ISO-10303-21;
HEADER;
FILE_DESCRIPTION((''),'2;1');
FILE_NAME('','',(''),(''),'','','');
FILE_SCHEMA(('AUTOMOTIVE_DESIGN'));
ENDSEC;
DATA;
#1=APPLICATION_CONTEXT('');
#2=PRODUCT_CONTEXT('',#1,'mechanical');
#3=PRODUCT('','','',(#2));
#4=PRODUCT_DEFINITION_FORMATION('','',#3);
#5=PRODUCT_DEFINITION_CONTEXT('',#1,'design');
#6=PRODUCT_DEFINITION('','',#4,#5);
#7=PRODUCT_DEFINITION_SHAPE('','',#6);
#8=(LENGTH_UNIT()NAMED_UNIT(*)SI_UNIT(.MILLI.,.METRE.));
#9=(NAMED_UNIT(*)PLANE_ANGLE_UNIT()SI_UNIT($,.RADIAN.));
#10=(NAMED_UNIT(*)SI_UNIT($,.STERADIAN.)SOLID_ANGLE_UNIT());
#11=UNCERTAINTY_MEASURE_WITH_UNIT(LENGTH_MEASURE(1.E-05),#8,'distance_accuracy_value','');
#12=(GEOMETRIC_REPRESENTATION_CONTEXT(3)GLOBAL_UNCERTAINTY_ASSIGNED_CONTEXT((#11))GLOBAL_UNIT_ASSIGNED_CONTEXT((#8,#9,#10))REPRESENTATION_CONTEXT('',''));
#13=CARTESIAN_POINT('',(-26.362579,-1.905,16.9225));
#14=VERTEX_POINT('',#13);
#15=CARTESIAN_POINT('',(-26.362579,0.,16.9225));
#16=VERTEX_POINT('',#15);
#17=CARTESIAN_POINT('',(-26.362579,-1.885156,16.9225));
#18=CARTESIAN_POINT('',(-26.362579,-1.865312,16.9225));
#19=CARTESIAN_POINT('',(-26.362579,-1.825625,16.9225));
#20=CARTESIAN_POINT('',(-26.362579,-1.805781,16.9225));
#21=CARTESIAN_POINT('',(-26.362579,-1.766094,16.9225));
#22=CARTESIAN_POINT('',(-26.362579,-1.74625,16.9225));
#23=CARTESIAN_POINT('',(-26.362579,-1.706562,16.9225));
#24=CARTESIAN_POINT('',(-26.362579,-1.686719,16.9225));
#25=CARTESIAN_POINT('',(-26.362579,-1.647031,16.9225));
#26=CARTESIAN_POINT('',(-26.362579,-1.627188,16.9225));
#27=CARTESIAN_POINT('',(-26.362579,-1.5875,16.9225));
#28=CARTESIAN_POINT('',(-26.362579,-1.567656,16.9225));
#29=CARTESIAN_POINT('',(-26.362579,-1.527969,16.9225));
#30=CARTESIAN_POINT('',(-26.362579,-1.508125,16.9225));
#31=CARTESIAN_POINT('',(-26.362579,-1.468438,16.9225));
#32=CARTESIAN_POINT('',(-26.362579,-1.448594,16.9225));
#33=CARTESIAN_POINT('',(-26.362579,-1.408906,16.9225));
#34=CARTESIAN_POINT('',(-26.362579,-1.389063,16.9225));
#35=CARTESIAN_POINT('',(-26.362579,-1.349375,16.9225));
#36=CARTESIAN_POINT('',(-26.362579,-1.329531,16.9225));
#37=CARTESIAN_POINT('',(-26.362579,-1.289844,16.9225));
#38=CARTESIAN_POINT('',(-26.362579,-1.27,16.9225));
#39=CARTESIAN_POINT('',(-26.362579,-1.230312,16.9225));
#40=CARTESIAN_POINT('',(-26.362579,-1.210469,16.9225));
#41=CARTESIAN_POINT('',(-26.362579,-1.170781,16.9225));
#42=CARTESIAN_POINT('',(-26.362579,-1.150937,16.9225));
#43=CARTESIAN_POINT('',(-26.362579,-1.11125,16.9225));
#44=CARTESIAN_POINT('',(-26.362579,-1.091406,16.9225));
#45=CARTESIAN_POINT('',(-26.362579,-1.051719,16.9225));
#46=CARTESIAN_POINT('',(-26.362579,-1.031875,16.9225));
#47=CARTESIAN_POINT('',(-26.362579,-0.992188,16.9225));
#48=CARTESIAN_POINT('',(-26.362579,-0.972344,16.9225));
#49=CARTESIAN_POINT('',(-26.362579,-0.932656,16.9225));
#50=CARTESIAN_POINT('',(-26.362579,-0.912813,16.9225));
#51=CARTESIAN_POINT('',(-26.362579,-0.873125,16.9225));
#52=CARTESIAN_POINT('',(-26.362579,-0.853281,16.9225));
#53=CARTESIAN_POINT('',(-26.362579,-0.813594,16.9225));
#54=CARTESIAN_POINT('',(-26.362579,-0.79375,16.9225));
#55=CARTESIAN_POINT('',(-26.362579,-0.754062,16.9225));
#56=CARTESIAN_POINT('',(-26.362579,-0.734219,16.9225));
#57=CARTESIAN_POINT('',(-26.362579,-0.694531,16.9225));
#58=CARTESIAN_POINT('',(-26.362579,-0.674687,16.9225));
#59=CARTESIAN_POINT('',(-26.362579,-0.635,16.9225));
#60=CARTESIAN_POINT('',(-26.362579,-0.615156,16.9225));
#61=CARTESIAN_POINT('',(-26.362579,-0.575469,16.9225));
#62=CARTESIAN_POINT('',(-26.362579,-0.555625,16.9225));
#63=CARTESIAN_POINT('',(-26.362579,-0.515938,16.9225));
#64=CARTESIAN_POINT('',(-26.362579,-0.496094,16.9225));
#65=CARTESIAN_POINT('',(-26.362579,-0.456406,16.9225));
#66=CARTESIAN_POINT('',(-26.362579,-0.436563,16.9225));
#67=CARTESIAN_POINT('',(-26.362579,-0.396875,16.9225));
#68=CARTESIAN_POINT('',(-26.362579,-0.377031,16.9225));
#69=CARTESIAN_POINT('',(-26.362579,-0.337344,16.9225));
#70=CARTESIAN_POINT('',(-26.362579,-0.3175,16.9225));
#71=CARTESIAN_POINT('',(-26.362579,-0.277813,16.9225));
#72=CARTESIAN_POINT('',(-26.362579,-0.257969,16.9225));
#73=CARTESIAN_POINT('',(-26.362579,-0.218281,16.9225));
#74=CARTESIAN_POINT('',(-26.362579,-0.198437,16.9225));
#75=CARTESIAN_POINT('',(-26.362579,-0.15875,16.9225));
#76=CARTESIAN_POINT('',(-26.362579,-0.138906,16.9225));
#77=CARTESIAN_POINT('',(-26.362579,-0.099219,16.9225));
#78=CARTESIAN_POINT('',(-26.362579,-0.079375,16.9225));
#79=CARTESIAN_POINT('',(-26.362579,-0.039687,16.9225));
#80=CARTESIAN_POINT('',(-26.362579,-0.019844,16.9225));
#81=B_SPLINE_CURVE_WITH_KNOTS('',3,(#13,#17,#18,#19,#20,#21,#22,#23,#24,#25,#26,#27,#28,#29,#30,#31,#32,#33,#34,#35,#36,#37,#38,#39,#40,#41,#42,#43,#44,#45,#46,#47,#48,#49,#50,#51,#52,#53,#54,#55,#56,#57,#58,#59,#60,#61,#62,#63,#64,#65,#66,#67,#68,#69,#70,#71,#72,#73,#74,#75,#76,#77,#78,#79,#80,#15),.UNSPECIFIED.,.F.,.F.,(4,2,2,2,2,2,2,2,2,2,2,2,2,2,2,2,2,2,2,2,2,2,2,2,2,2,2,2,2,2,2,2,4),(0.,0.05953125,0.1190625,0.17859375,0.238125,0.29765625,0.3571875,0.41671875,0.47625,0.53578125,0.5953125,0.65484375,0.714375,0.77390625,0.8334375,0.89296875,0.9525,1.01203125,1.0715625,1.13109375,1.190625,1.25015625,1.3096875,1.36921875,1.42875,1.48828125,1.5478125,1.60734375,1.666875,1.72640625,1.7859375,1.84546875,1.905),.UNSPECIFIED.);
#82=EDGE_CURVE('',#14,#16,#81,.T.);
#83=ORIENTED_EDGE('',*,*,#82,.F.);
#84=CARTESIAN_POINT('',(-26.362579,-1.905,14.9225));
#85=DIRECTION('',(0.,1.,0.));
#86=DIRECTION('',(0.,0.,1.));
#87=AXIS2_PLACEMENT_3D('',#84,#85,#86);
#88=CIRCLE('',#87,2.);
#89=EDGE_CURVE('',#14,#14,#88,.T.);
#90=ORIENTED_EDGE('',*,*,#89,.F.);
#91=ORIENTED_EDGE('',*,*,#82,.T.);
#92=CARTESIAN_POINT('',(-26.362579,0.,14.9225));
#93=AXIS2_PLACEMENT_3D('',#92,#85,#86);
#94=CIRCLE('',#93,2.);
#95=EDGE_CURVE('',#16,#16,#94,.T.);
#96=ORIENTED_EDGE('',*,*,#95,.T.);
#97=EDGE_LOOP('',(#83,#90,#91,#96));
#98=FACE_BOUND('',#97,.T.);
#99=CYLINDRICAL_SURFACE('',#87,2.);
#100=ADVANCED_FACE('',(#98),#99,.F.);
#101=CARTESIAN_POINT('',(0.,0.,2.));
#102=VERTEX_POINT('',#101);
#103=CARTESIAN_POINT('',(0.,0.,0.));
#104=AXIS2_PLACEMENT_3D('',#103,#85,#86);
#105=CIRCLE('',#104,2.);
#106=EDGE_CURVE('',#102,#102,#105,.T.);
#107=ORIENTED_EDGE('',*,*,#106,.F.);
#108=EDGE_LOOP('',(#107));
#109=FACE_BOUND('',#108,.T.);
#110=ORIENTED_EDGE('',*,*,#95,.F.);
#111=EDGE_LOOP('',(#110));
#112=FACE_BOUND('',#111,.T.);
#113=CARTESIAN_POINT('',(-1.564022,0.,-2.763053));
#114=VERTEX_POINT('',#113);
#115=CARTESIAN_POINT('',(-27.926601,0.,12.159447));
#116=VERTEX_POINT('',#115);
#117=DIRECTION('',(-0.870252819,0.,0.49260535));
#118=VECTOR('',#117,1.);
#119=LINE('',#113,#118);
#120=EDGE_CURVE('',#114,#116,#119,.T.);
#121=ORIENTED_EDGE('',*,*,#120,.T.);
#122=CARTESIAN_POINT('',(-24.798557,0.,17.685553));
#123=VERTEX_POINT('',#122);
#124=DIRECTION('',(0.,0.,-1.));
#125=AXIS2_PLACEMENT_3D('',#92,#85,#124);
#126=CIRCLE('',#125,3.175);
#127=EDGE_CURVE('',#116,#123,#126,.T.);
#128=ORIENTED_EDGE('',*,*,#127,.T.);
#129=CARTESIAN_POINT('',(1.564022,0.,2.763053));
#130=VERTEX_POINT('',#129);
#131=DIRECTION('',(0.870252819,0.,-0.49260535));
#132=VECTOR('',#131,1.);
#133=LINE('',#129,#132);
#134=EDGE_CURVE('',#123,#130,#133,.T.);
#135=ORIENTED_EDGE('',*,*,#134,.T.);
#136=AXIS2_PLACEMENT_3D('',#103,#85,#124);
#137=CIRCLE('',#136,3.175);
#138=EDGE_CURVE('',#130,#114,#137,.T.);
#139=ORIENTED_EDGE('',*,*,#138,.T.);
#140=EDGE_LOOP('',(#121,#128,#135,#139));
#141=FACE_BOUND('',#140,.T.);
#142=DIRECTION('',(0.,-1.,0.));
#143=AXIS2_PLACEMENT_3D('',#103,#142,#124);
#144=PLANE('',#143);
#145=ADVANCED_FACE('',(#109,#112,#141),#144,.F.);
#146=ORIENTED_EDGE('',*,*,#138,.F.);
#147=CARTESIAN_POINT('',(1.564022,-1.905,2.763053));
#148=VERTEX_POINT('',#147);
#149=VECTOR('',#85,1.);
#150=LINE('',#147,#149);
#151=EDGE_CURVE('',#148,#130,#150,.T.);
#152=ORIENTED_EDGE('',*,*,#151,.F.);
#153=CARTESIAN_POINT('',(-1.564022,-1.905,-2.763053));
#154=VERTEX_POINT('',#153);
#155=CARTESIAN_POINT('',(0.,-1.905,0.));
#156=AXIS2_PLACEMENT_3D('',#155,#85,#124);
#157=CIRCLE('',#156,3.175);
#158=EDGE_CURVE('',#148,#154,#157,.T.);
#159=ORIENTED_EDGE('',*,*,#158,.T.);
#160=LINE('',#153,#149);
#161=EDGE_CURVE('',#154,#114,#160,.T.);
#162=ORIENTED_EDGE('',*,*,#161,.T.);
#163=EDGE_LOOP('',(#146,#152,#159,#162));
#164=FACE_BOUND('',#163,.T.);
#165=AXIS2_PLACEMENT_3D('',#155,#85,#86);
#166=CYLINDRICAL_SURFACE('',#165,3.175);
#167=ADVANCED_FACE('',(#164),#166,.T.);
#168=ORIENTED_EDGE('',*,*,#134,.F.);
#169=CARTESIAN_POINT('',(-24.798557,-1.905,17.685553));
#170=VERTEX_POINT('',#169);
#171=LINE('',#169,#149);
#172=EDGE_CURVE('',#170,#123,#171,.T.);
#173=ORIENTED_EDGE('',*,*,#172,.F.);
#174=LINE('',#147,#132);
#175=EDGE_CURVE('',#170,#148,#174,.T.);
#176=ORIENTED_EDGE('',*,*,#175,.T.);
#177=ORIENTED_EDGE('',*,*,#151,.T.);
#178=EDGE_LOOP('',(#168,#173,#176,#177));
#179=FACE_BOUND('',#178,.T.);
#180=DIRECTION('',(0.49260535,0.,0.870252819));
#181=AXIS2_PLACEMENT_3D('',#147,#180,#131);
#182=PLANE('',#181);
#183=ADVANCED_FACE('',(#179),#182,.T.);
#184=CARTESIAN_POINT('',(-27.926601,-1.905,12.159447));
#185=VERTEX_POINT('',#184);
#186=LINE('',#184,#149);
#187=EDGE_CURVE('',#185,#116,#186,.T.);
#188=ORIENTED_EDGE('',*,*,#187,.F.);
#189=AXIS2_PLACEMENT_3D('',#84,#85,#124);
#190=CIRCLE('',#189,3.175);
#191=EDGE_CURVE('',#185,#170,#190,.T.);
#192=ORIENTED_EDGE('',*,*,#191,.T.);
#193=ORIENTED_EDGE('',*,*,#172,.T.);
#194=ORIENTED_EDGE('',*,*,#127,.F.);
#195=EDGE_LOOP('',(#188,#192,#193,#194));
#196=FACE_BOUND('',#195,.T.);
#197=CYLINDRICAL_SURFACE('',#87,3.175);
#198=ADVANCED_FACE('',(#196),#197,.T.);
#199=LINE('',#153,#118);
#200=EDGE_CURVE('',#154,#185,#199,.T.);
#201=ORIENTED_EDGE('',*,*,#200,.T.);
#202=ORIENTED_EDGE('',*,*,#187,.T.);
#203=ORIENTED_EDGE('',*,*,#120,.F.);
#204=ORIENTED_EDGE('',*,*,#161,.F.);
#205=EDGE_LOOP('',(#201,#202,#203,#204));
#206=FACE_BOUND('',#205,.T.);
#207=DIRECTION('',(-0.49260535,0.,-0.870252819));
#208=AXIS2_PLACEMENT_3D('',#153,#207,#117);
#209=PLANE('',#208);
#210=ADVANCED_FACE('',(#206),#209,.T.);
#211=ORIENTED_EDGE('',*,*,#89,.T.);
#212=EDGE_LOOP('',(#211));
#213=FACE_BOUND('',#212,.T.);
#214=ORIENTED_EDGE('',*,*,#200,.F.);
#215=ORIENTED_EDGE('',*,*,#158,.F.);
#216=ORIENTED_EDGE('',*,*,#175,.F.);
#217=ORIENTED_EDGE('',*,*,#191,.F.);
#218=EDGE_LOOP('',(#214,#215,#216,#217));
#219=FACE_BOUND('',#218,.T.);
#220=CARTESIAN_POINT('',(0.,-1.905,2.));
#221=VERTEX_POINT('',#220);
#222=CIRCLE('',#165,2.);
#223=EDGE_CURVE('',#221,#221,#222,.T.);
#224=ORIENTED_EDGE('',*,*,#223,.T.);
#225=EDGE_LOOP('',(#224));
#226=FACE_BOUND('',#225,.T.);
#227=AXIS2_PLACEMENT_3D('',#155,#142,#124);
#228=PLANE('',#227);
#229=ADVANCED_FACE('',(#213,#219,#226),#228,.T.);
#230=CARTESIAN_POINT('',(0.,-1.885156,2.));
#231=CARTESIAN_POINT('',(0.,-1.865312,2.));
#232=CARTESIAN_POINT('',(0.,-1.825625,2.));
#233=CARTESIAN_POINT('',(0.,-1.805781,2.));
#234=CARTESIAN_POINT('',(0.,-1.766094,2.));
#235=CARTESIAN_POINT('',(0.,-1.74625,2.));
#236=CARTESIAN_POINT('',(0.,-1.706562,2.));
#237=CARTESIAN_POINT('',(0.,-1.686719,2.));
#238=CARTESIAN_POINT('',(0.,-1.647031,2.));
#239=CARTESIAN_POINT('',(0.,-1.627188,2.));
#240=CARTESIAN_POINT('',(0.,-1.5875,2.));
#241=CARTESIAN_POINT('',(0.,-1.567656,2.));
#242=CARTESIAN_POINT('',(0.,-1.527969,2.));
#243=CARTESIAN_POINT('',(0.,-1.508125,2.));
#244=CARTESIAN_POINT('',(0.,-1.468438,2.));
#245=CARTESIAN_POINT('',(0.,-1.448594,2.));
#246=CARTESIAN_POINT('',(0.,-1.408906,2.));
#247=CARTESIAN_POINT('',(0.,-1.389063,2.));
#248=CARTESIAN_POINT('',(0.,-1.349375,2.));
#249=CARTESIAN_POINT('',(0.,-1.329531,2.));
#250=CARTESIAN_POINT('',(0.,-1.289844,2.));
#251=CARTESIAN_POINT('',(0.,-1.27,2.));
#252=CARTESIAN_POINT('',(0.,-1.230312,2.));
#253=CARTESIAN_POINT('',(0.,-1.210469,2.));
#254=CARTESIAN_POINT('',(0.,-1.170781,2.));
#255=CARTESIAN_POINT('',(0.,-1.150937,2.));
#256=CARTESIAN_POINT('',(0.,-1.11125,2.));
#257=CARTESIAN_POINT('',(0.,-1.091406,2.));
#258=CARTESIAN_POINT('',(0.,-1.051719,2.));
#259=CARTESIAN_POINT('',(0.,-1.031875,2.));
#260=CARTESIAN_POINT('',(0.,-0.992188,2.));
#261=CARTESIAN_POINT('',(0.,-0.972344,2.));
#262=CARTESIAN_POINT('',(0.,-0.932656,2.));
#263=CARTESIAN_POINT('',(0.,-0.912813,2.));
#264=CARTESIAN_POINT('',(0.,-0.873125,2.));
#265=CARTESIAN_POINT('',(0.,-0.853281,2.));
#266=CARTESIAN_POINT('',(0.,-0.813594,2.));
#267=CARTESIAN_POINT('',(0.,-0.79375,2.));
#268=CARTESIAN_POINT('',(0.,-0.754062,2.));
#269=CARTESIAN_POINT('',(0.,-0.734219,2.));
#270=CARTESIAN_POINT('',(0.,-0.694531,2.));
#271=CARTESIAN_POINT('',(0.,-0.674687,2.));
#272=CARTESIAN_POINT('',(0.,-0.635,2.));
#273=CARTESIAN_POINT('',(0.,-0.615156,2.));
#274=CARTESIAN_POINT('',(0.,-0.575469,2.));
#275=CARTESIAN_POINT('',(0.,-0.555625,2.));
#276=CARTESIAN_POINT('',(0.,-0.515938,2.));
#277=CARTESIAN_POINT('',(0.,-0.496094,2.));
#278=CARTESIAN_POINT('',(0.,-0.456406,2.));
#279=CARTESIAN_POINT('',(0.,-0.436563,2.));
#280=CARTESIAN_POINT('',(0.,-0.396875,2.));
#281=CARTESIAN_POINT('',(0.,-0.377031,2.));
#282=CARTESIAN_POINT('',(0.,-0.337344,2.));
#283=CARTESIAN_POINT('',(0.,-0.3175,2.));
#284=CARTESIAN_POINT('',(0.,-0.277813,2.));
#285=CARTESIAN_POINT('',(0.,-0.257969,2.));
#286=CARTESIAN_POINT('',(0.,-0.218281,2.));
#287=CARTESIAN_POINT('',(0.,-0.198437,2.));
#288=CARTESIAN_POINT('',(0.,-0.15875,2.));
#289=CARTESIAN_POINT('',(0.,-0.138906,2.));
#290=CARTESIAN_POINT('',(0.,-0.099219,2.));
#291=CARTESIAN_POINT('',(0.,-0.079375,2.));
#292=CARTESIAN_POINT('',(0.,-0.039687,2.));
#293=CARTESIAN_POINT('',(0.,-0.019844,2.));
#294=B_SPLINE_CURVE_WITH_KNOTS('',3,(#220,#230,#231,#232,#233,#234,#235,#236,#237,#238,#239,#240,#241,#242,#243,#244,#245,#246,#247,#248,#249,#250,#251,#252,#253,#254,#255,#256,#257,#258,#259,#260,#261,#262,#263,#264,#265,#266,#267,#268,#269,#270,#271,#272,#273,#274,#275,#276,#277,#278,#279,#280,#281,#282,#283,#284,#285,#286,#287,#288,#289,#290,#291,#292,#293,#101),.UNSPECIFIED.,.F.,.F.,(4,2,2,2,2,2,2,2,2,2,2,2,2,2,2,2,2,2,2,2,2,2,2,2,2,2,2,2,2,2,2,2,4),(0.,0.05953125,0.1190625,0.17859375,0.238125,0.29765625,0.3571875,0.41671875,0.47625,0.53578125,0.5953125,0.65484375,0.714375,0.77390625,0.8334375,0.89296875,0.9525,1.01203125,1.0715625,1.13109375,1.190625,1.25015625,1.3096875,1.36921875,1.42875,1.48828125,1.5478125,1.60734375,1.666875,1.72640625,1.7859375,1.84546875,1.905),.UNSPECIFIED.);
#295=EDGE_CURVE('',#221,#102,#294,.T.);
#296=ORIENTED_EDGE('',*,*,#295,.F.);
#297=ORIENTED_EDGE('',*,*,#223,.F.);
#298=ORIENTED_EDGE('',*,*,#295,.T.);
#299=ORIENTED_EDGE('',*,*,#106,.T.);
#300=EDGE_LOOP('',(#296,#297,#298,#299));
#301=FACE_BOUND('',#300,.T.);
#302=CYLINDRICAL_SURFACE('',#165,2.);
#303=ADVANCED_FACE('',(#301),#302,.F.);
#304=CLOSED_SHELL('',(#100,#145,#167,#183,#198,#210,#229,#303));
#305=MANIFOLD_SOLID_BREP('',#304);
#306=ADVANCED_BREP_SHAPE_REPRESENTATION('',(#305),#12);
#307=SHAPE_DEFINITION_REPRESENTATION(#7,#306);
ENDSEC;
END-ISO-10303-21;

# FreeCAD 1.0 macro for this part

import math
import FreeCAD as App
import Part
import Sketcher
from FreeCAD import Vector
Q = App.Units.Quantity

doc = App.newDocument("Part")
body = doc.addObject("PartDesign::Body", "Body")

sketch1 = body.newObject("Sketcher::SketchObject", "Sketch")
sketch1.AttachmentSupport = (doc.getObject("XZ_Plane"), [""])
sketch1.MapMode = "FlatFace"
sketch1.addGeometry(Part.LineSegment(Vector(-24.8, 17.7, 0), Vector(1.6, 2.8, 0)), False)
sketch1.addGeometry(Part.ArcOfCircle(Part.Circle(Vector(0, 0, 0), Vector(0, 0, 1), 3.2), math.radians(-120), math.radians(60)), False)
sketch1.addGeometry(Part.LineSegment(Vector(-1.6, -2.8, 0), Vector(-27.9, 12.2, 0)), False)
sketch1.addGeometry(Part.ArcOfCircle(Part.Circle(Vector(-26.4, 14.9, 0), Vector(0, 0, 1), 3.2), math.radians(60), math.radians(240)), False)
sketch1.addGeometry(Part.Circle(Vector(-26.4, 14.9, 0), Vector(0, 0, 1), 2), False)
sketch1.addGeometry(Part.Circle(Vector(0, 0, 0), Vector(0, 0, 1), 2), False)
sketch1.addConstraint(Sketcher.Constraint("Tangent", 0, 2, 1, 2))
sketch1.addConstraint(Sketcher.Constraint("Tangent", 1, 1, 2, 1))
sketch1.addConstraint(Sketcher.Constraint("Tangent", 2, 2, 3, 2))
sketch1.addConstraint(Sketcher.Constraint("Tangent", 3, 1, 0, 1))
sketch1.addConstraint(Sketcher.Constraint("Coincident", 1, 3, -1, 1))
sketch1.addConstraint(Sketcher.Constraint("Coincident", 5, 3, -1, 1))
sketch1.addConstraint(Sketcher.Constraint("Coincident", 4, 3, 3, 3))
sketch1.addConstraint(Sketcher.Constraint("Equal", 1, 3))
sketch1.addConstraint(Sketcher.Constraint("Equal", 4, 5))
sketch1.addConstraint(Sketcher.Constraint("Radius", 1, Q("0.125 in")))
sketch1.addConstraint(Sketcher.Constraint("Diameter", 4, 4.0))
sketch1.addConstraint(Sketcher.Constraint("DistanceY", -1, 1, 3, 3, Q("0.5875 in")))
sketch1.addConstraint(Sketcher.Constraint("DistanceX", 2, 2, -1, 1, 27.926601))
pad1 = body.newObject("PartDesign::Pad", "Pad")
pad1.Profile = sketch1
pad1.Length = Q("0.075 in")

doc.recompute()
